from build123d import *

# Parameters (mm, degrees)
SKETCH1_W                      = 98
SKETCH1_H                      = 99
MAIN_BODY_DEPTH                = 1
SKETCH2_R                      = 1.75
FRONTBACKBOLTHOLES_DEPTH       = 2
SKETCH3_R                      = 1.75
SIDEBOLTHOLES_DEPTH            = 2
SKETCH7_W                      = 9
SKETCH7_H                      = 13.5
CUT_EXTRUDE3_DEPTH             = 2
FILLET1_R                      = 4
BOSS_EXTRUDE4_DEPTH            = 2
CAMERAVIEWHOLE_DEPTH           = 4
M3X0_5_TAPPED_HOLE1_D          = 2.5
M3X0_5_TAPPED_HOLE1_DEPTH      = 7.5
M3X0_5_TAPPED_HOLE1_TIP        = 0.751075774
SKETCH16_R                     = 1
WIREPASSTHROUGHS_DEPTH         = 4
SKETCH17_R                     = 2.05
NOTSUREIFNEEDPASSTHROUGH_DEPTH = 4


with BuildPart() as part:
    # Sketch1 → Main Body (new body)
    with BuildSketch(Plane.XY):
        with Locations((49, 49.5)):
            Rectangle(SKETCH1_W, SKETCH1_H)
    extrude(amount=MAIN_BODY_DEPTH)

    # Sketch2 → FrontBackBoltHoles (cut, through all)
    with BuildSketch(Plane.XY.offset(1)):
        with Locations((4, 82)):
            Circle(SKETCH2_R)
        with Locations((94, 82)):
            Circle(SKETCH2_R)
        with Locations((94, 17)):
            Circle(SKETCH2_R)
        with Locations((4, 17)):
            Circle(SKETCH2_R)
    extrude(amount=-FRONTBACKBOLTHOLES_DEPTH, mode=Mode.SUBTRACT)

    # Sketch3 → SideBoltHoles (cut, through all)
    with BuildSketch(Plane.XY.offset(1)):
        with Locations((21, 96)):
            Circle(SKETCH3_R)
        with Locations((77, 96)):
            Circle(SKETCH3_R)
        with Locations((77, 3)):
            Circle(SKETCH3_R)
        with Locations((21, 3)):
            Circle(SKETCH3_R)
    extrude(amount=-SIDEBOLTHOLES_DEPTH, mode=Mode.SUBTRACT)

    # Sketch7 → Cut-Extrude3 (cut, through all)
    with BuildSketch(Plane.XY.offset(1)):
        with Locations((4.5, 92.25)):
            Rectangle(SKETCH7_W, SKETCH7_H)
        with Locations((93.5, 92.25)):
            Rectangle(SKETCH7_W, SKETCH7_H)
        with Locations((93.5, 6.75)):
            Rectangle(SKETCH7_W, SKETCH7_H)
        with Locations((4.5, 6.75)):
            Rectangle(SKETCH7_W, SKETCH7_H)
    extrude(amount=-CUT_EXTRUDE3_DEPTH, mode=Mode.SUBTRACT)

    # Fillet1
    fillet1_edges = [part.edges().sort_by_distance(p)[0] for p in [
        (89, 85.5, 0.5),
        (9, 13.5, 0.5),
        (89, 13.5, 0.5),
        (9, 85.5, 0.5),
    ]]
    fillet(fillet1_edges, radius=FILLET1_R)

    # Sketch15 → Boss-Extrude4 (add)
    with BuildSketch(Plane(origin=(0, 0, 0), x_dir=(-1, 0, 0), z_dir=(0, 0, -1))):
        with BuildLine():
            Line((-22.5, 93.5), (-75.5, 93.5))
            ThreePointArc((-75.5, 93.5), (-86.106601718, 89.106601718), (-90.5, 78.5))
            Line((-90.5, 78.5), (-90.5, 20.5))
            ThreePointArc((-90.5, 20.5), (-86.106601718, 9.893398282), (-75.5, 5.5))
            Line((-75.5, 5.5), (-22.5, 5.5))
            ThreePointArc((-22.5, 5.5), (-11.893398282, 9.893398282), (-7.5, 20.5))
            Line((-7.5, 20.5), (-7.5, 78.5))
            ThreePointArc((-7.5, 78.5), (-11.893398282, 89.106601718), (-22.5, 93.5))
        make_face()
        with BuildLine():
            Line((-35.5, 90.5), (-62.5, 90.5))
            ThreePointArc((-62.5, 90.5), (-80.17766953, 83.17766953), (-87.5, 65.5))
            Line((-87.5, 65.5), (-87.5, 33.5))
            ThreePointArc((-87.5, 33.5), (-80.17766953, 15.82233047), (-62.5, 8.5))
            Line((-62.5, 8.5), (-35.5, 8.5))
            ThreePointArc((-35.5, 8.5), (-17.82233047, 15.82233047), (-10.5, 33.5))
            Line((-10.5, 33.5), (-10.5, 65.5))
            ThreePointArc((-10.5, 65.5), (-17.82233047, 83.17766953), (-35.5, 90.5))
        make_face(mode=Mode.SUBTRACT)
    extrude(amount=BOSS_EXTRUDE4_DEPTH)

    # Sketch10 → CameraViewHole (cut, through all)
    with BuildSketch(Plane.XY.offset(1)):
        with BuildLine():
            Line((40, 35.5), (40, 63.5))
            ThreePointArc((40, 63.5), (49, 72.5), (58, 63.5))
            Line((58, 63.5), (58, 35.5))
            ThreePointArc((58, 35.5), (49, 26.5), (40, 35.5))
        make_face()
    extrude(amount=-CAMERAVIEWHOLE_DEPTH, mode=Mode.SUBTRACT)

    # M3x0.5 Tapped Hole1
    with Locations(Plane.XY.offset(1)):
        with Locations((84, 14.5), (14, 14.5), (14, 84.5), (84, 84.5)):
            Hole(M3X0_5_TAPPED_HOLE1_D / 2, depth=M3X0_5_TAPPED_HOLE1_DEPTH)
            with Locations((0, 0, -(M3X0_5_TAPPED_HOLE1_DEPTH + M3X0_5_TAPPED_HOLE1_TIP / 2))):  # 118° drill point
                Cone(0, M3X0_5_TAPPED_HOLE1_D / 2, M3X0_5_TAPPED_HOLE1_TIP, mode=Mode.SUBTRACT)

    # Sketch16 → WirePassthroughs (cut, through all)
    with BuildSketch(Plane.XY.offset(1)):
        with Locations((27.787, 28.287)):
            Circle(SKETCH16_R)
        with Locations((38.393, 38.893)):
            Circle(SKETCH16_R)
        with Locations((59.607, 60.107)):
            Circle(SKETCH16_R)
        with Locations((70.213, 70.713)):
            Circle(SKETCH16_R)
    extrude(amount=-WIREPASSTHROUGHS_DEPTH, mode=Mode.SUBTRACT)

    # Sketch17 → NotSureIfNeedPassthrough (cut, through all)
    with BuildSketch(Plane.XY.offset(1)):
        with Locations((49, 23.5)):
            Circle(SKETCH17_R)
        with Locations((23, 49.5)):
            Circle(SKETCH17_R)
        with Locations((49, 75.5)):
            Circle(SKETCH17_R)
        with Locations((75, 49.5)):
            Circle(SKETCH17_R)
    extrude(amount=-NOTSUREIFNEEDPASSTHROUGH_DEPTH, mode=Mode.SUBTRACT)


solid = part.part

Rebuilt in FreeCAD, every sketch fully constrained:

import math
import FreeCAD as App
import Part
import Sketcher
from FreeCAD import Vector
Q = App.Units.Quantity


def edges_at(feature, points):
    """Names of the edges that pass closest to the given points."""
    edges = feature.Shape.Edges
    near = lambda p: min(range(len(edges)), key=lambda i: edges[i].distToShape(Part.Vertex(*p))[0])
    return sorted({f"Edge{near(p) + 1}" for p in points})


def add_polygon(sketch, points):
    """Adds a closed chain of lines whose ends are joined by coincident constraints."""
    first, n = sketch.GeometryCount, len(points)
    for a, b in zip(points, points[1:] + points[:1]):
        sketch.addGeometry(Part.LineSegment(App.Vector(*a, 0), App.Vector(*b, 0)), False)
    for i in range(n):
        sketch.addConstraint(Sketcher.Constraint("Coincident", first + i, 2, first + (i + 1) % n, 1))

doc = App.newDocument("Part")
body = doc.addObject("PartDesign::Body", "Body")

sketch1 = body.newObject("Sketcher::SketchObject", "Sketch")
sketch1.AttachmentSupport = (doc.getObject("XY_Plane"), [""])
sketch1.MapMode = "FlatFace"
add_polygon(sketch1, [(0, 99), (0, 0), (98, 0), (98, 99)])
sketch1.addConstraint(Sketcher.Constraint("Vertical", 0))
sketch1.addConstraint(Sketcher.Constraint("Horizontal", 1))
sketch1.addConstraint(Sketcher.Constraint("Vertical", 2))
sketch1.addConstraint(Sketcher.Constraint("Horizontal", 3))
sketch1.addConstraint(Sketcher.Constraint("Coincident", 0, 2, -1, 1))
sketch1.addConstraint(Sketcher.Constraint("DistanceX", 1, 1, 1, 2, Q("98 mm")))
sketch1.addConstraint(Sketcher.Constraint("DistanceY", 0, 2, 0, 1, Q("99 mm")))
pad1 = body.newObject("PartDesign::Pad", "Pad")
pad1.Profile = sketch1
pad1.Length = 1

sketch2 = body.newObject("Sketcher::SketchObject", "Sketch001")
sketch2.AttachmentSupport = (doc.getObject("XY_Plane"), [""])
sketch2.MapMode = "FlatFace"
sketch2.AttachmentOffset = App.Placement(Vector(0, 0, 1), App.Rotation())
sketch2.addGeometry(Part.Circle(Vector(4, 82, 0), Vector(0, 0, 1), 1.8), False)
sketch2.addGeometry(Part.Circle(Vector(94, 82, 0), Vector(0, 0, 1), 1.8), False)
sketch2.addGeometry(Part.Circle(Vector(94, 17, 0), Vector(0, 0, 1), 1.8), False)
sketch2.addGeometry(Part.Circle(Vector(4, 17, 0), Vector(0, 0, 1), 1.8), False)
sketch2.addConstraint(Sketcher.Constraint("Equal", 0, 1))
sketch2.addConstraint(Sketcher.Constraint("Equal", 1, 2))
sketch2.addConstraint(Sketcher.Constraint("Equal", 2, 3))
sketch2.addConstraint(Sketcher.Constraint("Horizontal", 0, 3, 1, 3))
sketch2.addConstraint(Sketcher.Constraint("Horizontal", 2, 3, 3, 3))
sketch2.addConstraint(Sketcher.Constraint("Vertical", 1, 3, 2, 3))
sketch2.addConstraint(Sketcher.Constraint("Vertical", 0, 3, 3, 3))
sketch2.addConstraint(Sketcher.Constraint("Diameter", 0, Q("3.5 mm")))
sketch2.addConstraint(Sketcher.Constraint("DistanceX", -1, 1, 0, 3, Q("4 mm")))
sketch2.addConstraint(Sketcher.Constraint("DistanceY", -1, 1, 0, 3, Q("82 mm")))
sketch2.addConstraint(Sketcher.Constraint("DistanceX", -1, 1, 1, 3, Q("94 mm")))
sketch2.addConstraint(Sketcher.Constraint("DistanceY", -1, 1, 2, 3, Q("17 mm")))
pocket1 = body.newObject("PartDesign::Pocket", "Pocket")
pocket1.Profile = sketch2
pocket1.Type = "ThroughAll"

sketch3 = body.newObject("Sketcher::SketchObject", "Sketch002")
sketch3.AttachmentSupport = (doc.getObject("XY_Plane"), [""])
sketch3.MapMode = "FlatFace"
sketch3.AttachmentOffset = App.Placement(Vector(0, 0, 1), App.Rotation())
sketch3.addGeometry(Part.Circle(Vector(21, 96, 0), Vector(0, 0, 1), 1.8), False)
sketch3.addGeometry(Part.Circle(Vector(77, 96, 0), Vector(0, 0, 1), 1.8), False)
sketch3.addGeometry(Part.Circle(Vector(77, 3, 0), Vector(0, 0, 1), 1.8), False)
sketch3.addGeometry(Part.Circle(Vector(21, 3, 0), Vector(0, 0, 1), 1.8), False)
sketch3.addConstraint(Sketcher.Constraint("Equal", 0, 1))
sketch3.addConstraint(Sketcher.Constraint("Equal", 1, 2))
sketch3.addConstraint(Sketcher.Constraint("Equal", 2, 3))
sketch3.addConstraint(Sketcher.Constraint("Horizontal", 0, 3, 1, 3))
sketch3.addConstraint(Sketcher.Constraint("Horizontal", 2, 3, 3, 3))
sketch3.addConstraint(Sketcher.Constraint("Vertical", 1, 3, 2, 3))
sketch3.addConstraint(Sketcher.Constraint("Vertical", 0, 3, 3, 3))
sketch3.addConstraint(Sketcher.Constraint("Diameter", 0, Q("3.5 mm")))
sketch3.addConstraint(Sketcher.Constraint("DistanceX", -1, 1, 0, 3, Q("21 mm")))
sketch3.addConstraint(Sketcher.Constraint("DistanceY", -1, 1, 0, 3, Q("96 mm")))
sketch3.addConstraint(Sketcher.Constraint("DistanceX", -1, 1, 1, 3, Q("77 mm")))
sketch3.addConstraint(Sketcher.Constraint("DistanceY", -1, 1, 2, 3, Q("3 mm")))
pocket2 = body.newObject("PartDesign::Pocket", "Pocket001")
pocket2.Profile = sketch3
pocket2.Type = "ThroughAll"

sketch4 = body.newObject("Sketcher::SketchObject", "Sketch003")
sketch4.AttachmentSupport = (doc.getObject("XY_Plane"), [""])
sketch4.MapMode = "FlatFace"
sketch4.AttachmentOffset = App.Placement(Vector(0, 0, 1), App.Rotation())
add_polygon(sketch4, [(0, 99), (0, 86), (9, 86), (9, 99)])
add_polygon(sketch4, [(89, 99), (89, 86), (98, 86), (98, 99)])
add_polygon(sketch4, [(89, 14), (89, 0), (98, 0), (98, 14)])
add_polygon(sketch4, [(0, 14), (0, 0), (9, 0), (9, 14)])
sketch4.addConstraint(Sketcher.Constraint("Vertical", 0))
sketch4.addConstraint(Sketcher.Constraint("Horizontal", 1))
sketch4.addConstraint(Sketcher.Constraint("Vertical", 2))
sketch4.addConstraint(Sketcher.Constraint("Horizontal", 3))
sketch4.addConstraint(Sketcher.Constraint("Vertical", 4))
sketch4.addConstraint(Sketcher.Constraint("Horizontal", 5))
sketch4.addConstraint(Sketcher.Constraint("Vertical", 6))
sketch4.addConstraint(Sketcher.Constraint("Horizontal", 7))
sketch4.addConstraint(Sketcher.Constraint("Vertical", 8))
sketch4.addConstraint(Sketcher.Constraint("Horizontal", 9))
sketch4.addConstraint(Sketcher.Constraint("Vertical", 10))
sketch4.addConstraint(Sketcher.Constraint("Horizontal", 11))
sketch4.addConstraint(Sketcher.Constraint("Vertical", 12))
sketch4.addConstraint(Sketcher.Constraint("Horizontal", 13))
sketch4.addConstraint(Sketcher.Constraint("Vertical", 14))
sketch4.addConstraint(Sketcher.Constraint("Horizontal", 15))
sketch4.addConstraint(Sketcher.Constraint("Coincident", 12, 2, -1, 1))
sketch4.addConstraint(Sketcher.Constraint("PointOnObject", 0, 2, -2))
sketch4.addConstraint(Sketcher.Constraint("PointOnObject", 8, 2, -1))
sketch4.addConstraint(Sketcher.Constraint("Horizontal", 1, 2, 4, 2))
sketch4.addConstraint(Sketcher.Constraint("Horizontal", 3, 2, 6, 2))
sketch4.addConstraint(Sketcher.Constraint("Horizontal", 11, 2, 14, 2))
sketch4.addConstraint(Sketcher.Constraint("Vertical", 7, 2, 8, 2))
sketch4.addConstraint(Sketcher.Constraint("Vertical", 6, 2, 9, 2))
sketch4.addConstraint(Sketcher.Constraint("Vertical", 2, 2, 13, 2))
sketch4.addConstraint(Sketcher.Constraint("Equal", 3, 5))
sketch4.addConstraint(Sketcher.Constraint("Equal", 6, 8))
sketch4.addConstraint(Sketcher.Constraint("DistanceX", 1, 1, 1, 2, Q("9 mm")))
sketch4.addConstraint(Sketcher.Constraint("DistanceY", 0, 2, 0, 1, Q("13.5 mm")))
sketch4.addConstraint(Sketcher.Constraint("DistanceY", -1, 1, 2, 2, Q("99 mm")))
sketch4.addConstraint(Sketcher.Constraint("DistanceX", -1, 1, 4, 2, Q("89 mm")))
pocket3 = body.newObject("PartDesign::Pocket", "Pocket002")
pocket3.Profile = sketch4
pocket3.Type = "ThroughAll"
doc.recompute()

fillet = body.newObject("PartDesign::Fillet", "Fillet")
fillet.Base = (pocket3, edges_at(pocket3, [
    (89, 85.5, 0.5),
    (9, 13.5, 0.5),
    (89, 13.5, 0.5),
    (9, 85.5, 0.5),
]))
fillet.Radius = 4

sketch5 = body.newObject("Sketcher::SketchObject", "Sketch004")
sketch5.AttachmentSupport = (doc.getObject("XY_Plane"), [""])
sketch5.MapMode = "FlatFace"
sketch5.addGeometry(Part.LineSegment(Vector(22, 94, 0), Vector(76, 94, 0)), False)
sketch5.addGeometry(Part.ArcOfCircle(Part.Circle(Vector(76, 79, 0), Vector(0, 0, 1), 15), math.radians(0), math.radians(90)), False)
sketch5.addGeometry(Part.LineSegment(Vector(90, 78, 0), Vector(90, 20, 0)), False)
sketch5.addGeometry(Part.ArcOfCircle(Part.Circle(Vector(76, 20, 0), Vector(0, 0, 1), 15), math.radians(-90), math.radians(0)), False)
sketch5.addGeometry(Part.LineSegment(Vector(76, 6, 0), Vector(22, 6, 0)), False)
sketch5.addGeometry(Part.ArcOfCircle(Part.Circle(Vector(22, 20, 0), Vector(0, 0, 1), 15), math.radians(180), math.radians(270)), False)
sketch5.addGeometry(Part.LineSegment(Vector(8, 20, 0), Vector(8, 78, 0)), False)
sketch5.addGeometry(Part.ArcOfCircle(Part.Circle(Vector(22, 79, 0), Vector(0, 0, 1), 15), math.radians(90), math.radians(180)), False)
sketch5.addGeometry(Part.LineSegment(Vector(62, 90, 0), Vector(36, 90, 0)), False)
sketch5.addGeometry(Part.ArcOfCircle(Part.Circle(Vector(35, 66, 0), Vector(0, 0, 1), 25), math.radians(90), math.radians(180)), False)
sketch5.addGeometry(Part.LineSegment(Vector(10, 66, 0), Vector(10, 34, 0)), False)
sketch5.addGeometry(Part.ArcOfCircle(Part.Circle(Vector(35, 33, 0), Vector(0, 0, 1), 25), math.radians(180), math.radians(270)), False)
sketch5.addGeometry(Part.LineSegment(Vector(36, 8, 0), Vector(62, 8, 0)), False)
sketch5.addGeometry(Part.ArcOfCircle(Part.Circle(Vector(63, 33, 0), Vector(0, 0, 1), 25), math.radians(-90), math.radians(0)), False)
sketch5.addGeometry(Part.LineSegment(Vector(88, 34, 0), Vector(88, 66, 0)), False)
sketch5.addGeometry(Part.ArcOfCircle(Part.Circle(Vector(63, 66, 0), Vector(0, 0, 1), 25), math.radians(0), math.radians(90)), False)
sketch5.addConstraint(Sketcher.Constraint("Tangent", 0, 2, 1, 2))
sketch5.addConstraint(Sketcher.Constraint("Tangent", 1, 1, 2, 1))
sketch5.addConstraint(Sketcher.Constraint("Tangent", 2, 2, 3, 2))
sketch5.addConstraint(Sketcher.Constraint("Tangent", 3, 1, 4, 1))
sketch5.addConstraint(Sketcher.Constraint("Tangent", 4, 2, 5, 2))
sketch5.addConstraint(Sketcher.Constraint("Tangent", 5, 1, 6, 1))
sketch5.addConstraint(Sketcher.Constraint("Tangent", 6, 2, 7, 2))
sketch5.addConstraint(Sketcher.Constraint("Tangent", 7, 1, 0, 1))
sketch5.addConstraint(Sketcher.Constraint("Tangent", 8, 2, 9, 1))
sketch5.addConstraint(Sketcher.Constraint("Tangent", 9, 2, 10, 1))
sketch5.addConstraint(Sketcher.Constraint("Tangent", 10, 2, 11, 1))
sketch5.addConstraint(Sketcher.Constraint("Tangent", 11, 2, 12, 1))
sketch5.addConstraint(Sketcher.Constraint("Tangent", 12, 2, 13, 1))
sketch5.addConstraint(Sketcher.Constraint("Tangent", 13, 2, 14, 1))
sketch5.addConstraint(Sketcher.Constraint("Tangent", 14, 2, 15, 1))
sketch5.addConstraint(Sketcher.Constraint("Tangent", 15, 2, 8, 1))
sketch5.addConstraint(Sketcher.Constraint("Horizontal", 0))
sketch5.addConstraint(Sketcher.Constraint("Vertical", 2))
sketch5.addConstraint(Sketcher.Constraint("Horizontal", 4))
sketch5.addConstraint(Sketcher.Constraint("Vertical", 6))
sketch5.addConstraint(Sketcher.Constraint("Horizontal", 8))
sketch5.addConstraint(Sketcher.Constraint("Vertical", 10))
sketch5.addConstraint(Sketcher.Constraint("Horizontal", 12))
sketch5.addConstraint(Sketcher.Constraint("Vertical", 14))
sketch5.addConstraint(Sketcher.Constraint("Equal", 1, 3))
sketch5.addConstraint(Sketcher.Constraint("Equal", 3, 5))
sketch5.addConstraint(Sketcher.Constraint("Equal", 5, 7))
sketch5.addConstraint(Sketcher.Constraint("Equal", 9, 11))
sketch5.addConstraint(Sketcher.Constraint("Equal", 11, 13))
sketch5.addConstraint(Sketcher.Constraint("Equal", 13, 15))
sketch5.addConstraint(Sketcher.Constraint("Radius", 1, Q("15 mm")))
sketch5.addConstraint(Sketcher.Constraint("Radius", 9, Q("25 mm")))
sketch5.addConstraint(Sketcher.Constraint("DistanceX", 0, 1, 0, 2, Q("53 mm")))
sketch5.addConstraint(Sketcher.Constraint("DistanceX", 8, 2, 8, 1, Q("27 mm")))
sketch5.addConstraint(Sketcher.Constraint("DistanceY", 2, 2, 2, 1, Q("58 mm")))
sketch5.addConstraint(Sketcher.Constraint("DistanceY", 10, 2, 10, 1, Q("32 mm")))
sketch5.addConstraint(Sketcher.Constraint("DistanceX", 7, 3, 9, 3, Q("13 mm")))
sketch5.addConstraint(Sketcher.Constraint("DistanceY", 9, 3, 7, 3, Q("13 mm")))
sketch5.addConstraint(Sketcher.Constraint("DistanceX", -1, 1, 1, 3, Q("75.5 mm")))
sketch5.addConstraint(Sketcher.Constraint("DistanceY", -1, 1, 1, 3, Q("78.5 mm")))
pad2 = body.newObject("PartDesign::Pad", "Pad001")
pad2.Profile = sketch5
pad2.Length = 2
pad2.Reversed = True

sketch6 = body.newObject("Sketcher::SketchObject", "Sketch005")
sketch6.AttachmentSupport = (doc.getObject("XY_Plane"), [""])
sketch6.MapMode = "FlatFace"
sketch6.AttachmentOffset = App.Placement(Vector(0, 0, 1), App.Rotation())
sketch6.addGeometry(Part.LineSegment(Vector(40, 64, 0), Vector(40, 36, 0)), False)
sketch6.addGeometry(Part.ArcOfCircle(Part.Circle(Vector(49, 36, 0), Vector(0, 0, 1), 9), math.radians(180), math.radians(360)), False)
sketch6.addGeometry(Part.LineSegment(Vector(58, 36, 0), Vector(58, 64, 0)), False)
sketch6.addGeometry(Part.ArcOfCircle(Part.Circle(Vector(49, 64, 0), Vector(0, 0, 1), 9), math.radians(0), math.radians(180)), False)
sketch6.addConstraint(Sketcher.Constraint("Tangent", 0, 2, 1, 1))
sketch6.addConstraint(Sketcher.Constraint("Tangent", 1, 2, 2, 1))
sketch6.addConstraint(Sketcher.Constraint("Tangent", 2, 2, 3, 1))
sketch6.addConstraint(Sketcher.Constraint("Tangent", 3, 2, 0, 1))
sketch6.addConstraint(Sketcher.Constraint("Vertical", 0))
sketch6.addConstraint(Sketcher.Constraint("Vertical", 2))
sketch6.addConstraint(Sketcher.Constraint("Radius", 1, Q("9 mm")))
sketch6.addConstraint(Sketcher.Constraint("DistanceY", 0, 2, 0, 1, Q("28 mm")))
sketch6.addConstraint(Sketcher.Constraint("DistanceX", -1, 1, 1, 3, Q("49 mm")))
sketch6.addConstraint(Sketcher.Constraint("DistanceY", -1, 1, 1, 3, Q("35.5 mm")))
pocket4 = body.newObject("PartDesign::Pocket", "Pocket003")
pocket4.Profile = sketch6
pocket4.Type = "ThroughAll"

sketch7 = body.newObject("Sketcher::SketchObject", "Sketch006")
sketch7.AttachmentSupport = (doc.getObject("XY_Plane"), [""])
sketch7.MapMode = "FlatFace"
sketch7.AttachmentOffset = App.Placement(Vector(0, 0, 1), App.Rotation())
sketch7.addGeometry(Part.Circle(Vector(84, 14.5, 0), Vector(0, 0, 1), 1.2), False)
sketch7.addGeometry(Part.Circle(Vector(14, 14.5, 0), Vector(0, 0, 1), 1.2), False)
sketch7.addGeometry(Part.Circle(Vector(14, 84.5, 0), Vector(0, 0, 1), 1.2), False)
sketch7.addGeometry(Part.Circle(Vector(84, 84.5, 0), Vector(0, 0, 1), 1.2), False)
sketch7.addConstraint(Sketcher.Constraint("Equal", 0, 1))
sketch7.addConstraint(Sketcher.Constraint("Equal", 1, 2))
sketch7.addConstraint(Sketcher.Constraint("Equal", 2, 3))
sketch7.addConstraint(Sketcher.Constraint("Horizontal", 0, 3, 1, 3))
sketch7.addConstraint(Sketcher.Constraint("Horizontal", 2, 3, 3, 3))
sketch7.addConstraint(Sketcher.Constraint("Vertical", 1, 3, 2, 3))
sketch7.addConstraint(Sketcher.Constraint("Vertical", 0, 3, 3, 3))
sketch7.addConstraint(Sketcher.Constraint("Diameter", 0, Q("2.5 mm")))
sketch7.addConstraint(Sketcher.Constraint("DistanceX", -1, 1, 0, 3, Q("84 mm")))
sketch7.addConstraint(Sketcher.Constraint("DistanceX", -1, 1, 1, 3, Q("14 mm")))
sketch7.addConstraint(Sketcher.Constraint("DistanceY", 1, 3, 2, 3, Q("70 mm")))
sketch7.addConstraint(Sketcher.Constraint("DistanceY", -1, 1, 0, 3, Q("14.5 mm")))
doc.recompute()
hole = body.newObject("PartDesign::Hole", "Hole")
hole.Profile = sketch7
hole.ThreadType = "None"
hole.Diameter = 2.5
hole.DepthType = "Dimension"
hole.Depth = 7.5
hole.DrillPoint = "Angled"
hole.DrillPointAngle = 118

sketch8 = body.newObject("Sketcher::SketchObject", "Sketch007")
sketch8.AttachmentSupport = (doc.getObject("XY_Plane"), [""])
sketch8.MapMode = "FlatFace"
sketch8.AttachmentOffset = App.Placement(Vector(0, 0, 1), App.Rotation())
sketch8.addGeometry(Part.Circle(Vector(27.8, 28.3, 0), Vector(0, 0, 1), 1), False)
sketch8.addGeometry(Part.Circle(Vector(38.4, 38.9, 0), Vector(0, 0, 1), 1), False)
sketch8.addGeometry(Part.Circle(Vector(59.6, 60.1, 0), Vector(0, 0, 1), 1), False)
sketch8.addGeometry(Part.Circle(Vector(70.2, 70.7, 0), Vector(0, 0, 1), 1), False)
sketch8.addConstraint(Sketcher.Constraint("Equal", 0, 1))
sketch8.addConstraint(Sketcher.Constraint("Equal", 1, 2))
sketch8.addConstraint(Sketcher.Constraint("Equal", 2, 3))
sketch8.addConstraint(Sketcher.Constraint("Diameter", 0, Q("2 mm")))
sketch8.addConstraint(Sketcher.Constraint("DistanceX", 0, 3, 2, 3, Q("31.82 mm")))
sketch8.addConstraint(Sketcher.Constraint("DistanceY", 0, 3, 2, 3, Q("31.82 mm")))
sketch8.addConstraint(Sketcher.Constraint("DistanceX", 1, 3, 3, 3, Q("31.82 mm")))
sketch8.addConstraint(Sketcher.Constraint("DistanceY", 1, 3, 3, 3, Q("31.82 mm")))
sketch8.addConstraint(Sketcher.Constraint("DistanceX", -1, 1, 0, 3, Q("27.787 mm")))
sketch8.addConstraint(Sketcher.Constraint("DistanceY", -1, 1, 0, 3, Q("28.287 mm")))
sketch8.addConstraint(Sketcher.Constraint("DistanceX", -1, 1, 1, 3, Q("38.393 mm")))
sketch8.addConstraint(Sketcher.Constraint("DistanceY", -1, 1, 1, 3, Q("38.893 mm")))
pocket5 = body.newObject("PartDesign::Pocket", "Pocket004")
pocket5.Profile = sketch8
pocket5.Type = "ThroughAll"

sketch9 = body.newObject("Sketcher::SketchObject", "Sketch008")
sketch9.AttachmentSupport = (doc.getObject("XY_Plane"), [""])
sketch9.MapMode = "FlatFace"
sketch9.AttachmentOffset = App.Placement(Vector(0, 0, 1), App.Rotation())
sketch9.addGeometry(Part.Circle(Vector(49, 23.5, 0), Vector(0, 0, 1), 2), False)
sketch9.addGeometry(Part.Circle(Vector(23, 49.5, 0), Vector(0, 0, 1), 2), False)
sketch9.addGeometry(Part.Circle(Vector(49, 75.5, 0), Vector(0, 0, 1), 2), False)
sketch9.addGeometry(Part.Circle(Vector(75, 49.5, 0), Vector(0, 0, 1), 2), False)
sketch9.addConstraint(Sketcher.Constraint("Equal", 0, 1))
sketch9.addConstraint(Sketcher.Constraint("Equal", 1, 2))
sketch9.addConstraint(Sketcher.Constraint("Equal", 2, 3))
sketch9.addConstraint(Sketcher.Constraint("Horizontal", 1, 3, 3, 3))
sketch9.addConstraint(Sketcher.Constraint("Vertical", 0, 3, 2, 3))
sketch9.addConstraint(Sketcher.Constraint("Diameter", 0, Q("4.1 mm")))
sketch9.addConstraint(Sketcher.Constraint("DistanceX", -1, 1, 0, 3, Q("49 mm")))
sketch9.addConstraint(Sketcher.Constraint("DistanceX", -1, 1, 1, 3, Q("23 mm")))
sketch9.addConstraint(Sketcher.Constraint("DistanceX", -1, 1, 3, 3, Q("75 mm")))
sketch9.addConstraint(Sketcher.Constraint("DistanceY", 0, 3, 1, 3, Q("26 mm")))
sketch9.addConstraint(Sketcher.Constraint("DistanceY", 1, 3, 2, 3, Q("26 mm")))
sketch9.addConstraint(Sketcher.Constraint("DistanceY", -1, 1, 0, 3, Q("23.5 mm")))
pocket6 = body.newObject("PartDesign::Pocket", "Pocket005")
pocket6.Profile = sketch9
pocket6.Type = "ThroughAll"

doc.recompute()
